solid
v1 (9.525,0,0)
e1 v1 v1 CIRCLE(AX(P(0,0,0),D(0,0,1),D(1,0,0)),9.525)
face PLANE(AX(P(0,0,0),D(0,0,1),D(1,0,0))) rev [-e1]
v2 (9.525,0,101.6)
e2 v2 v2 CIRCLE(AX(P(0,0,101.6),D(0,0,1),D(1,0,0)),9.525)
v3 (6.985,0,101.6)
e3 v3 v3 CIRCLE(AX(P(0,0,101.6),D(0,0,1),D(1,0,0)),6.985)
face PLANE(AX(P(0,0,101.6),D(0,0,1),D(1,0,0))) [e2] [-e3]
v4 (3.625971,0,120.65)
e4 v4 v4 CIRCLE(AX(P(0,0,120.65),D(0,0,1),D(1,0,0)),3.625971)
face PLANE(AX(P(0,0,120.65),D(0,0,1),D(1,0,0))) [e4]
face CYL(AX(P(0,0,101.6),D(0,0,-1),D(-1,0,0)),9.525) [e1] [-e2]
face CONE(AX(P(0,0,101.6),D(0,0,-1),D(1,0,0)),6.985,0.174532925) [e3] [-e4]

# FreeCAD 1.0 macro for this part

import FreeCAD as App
import Part
import Sketcher

V = App.Vector
Q = App.Units.Quantity

doc = App.newDocument("Part")
body = doc.addObject("PartDesign::Body", "Body")

sketch1 = body.newObject("Sketcher::SketchObject", "Sketch")
sketch1.AttachmentSupport = (doc.getObject("XY_Plane"), [""])
sketch1.MapMode = "FlatFace"
sketch1.addGeometry(Part.Circle(V(0, 0, 0), V(0, 0, 1), 10), False)
sketch1.addConstraint(Sketcher.Constraint("Coincident", 0, 3, -1, 1))
sketch1.addConstraint(Sketcher.Constraint("Diameter", 0, Q("0.75 in")))
pad1 = body.newObject("PartDesign::Pad", "Pad")
pad1.Profile = sketch1
pad1.Length = Q("4 in")

sketch2 = body.newObject("Sketcher::SketchObject", "Sketch001")
sketch2.AttachmentSupport = (doc.getObject("XY_Plane"), [""])
sketch2.MapMode = "FlatFace"
sketch2.AttachmentOffset = App.Placement(V(0, 0, 4 * 25.4), App.Rotation())
sketch2.addGeometry(Part.Circle(V(0, 0, 0), V(0, 0, 1), 7), False)
sketch2.addConstraint(Sketcher.Constraint("Coincident", 0, 3, -1, 1))
sketch2.addConstraint(Sketcher.Constraint("Diameter", 0, Q("0.55 in")))
pad2 = body.newObject("PartDesign::Pad", "Pad001")
pad2.Profile = sketch2
pad2.Length = Q("0.75 in")
pad2.TaperAngle = -10

doc.recompute()
